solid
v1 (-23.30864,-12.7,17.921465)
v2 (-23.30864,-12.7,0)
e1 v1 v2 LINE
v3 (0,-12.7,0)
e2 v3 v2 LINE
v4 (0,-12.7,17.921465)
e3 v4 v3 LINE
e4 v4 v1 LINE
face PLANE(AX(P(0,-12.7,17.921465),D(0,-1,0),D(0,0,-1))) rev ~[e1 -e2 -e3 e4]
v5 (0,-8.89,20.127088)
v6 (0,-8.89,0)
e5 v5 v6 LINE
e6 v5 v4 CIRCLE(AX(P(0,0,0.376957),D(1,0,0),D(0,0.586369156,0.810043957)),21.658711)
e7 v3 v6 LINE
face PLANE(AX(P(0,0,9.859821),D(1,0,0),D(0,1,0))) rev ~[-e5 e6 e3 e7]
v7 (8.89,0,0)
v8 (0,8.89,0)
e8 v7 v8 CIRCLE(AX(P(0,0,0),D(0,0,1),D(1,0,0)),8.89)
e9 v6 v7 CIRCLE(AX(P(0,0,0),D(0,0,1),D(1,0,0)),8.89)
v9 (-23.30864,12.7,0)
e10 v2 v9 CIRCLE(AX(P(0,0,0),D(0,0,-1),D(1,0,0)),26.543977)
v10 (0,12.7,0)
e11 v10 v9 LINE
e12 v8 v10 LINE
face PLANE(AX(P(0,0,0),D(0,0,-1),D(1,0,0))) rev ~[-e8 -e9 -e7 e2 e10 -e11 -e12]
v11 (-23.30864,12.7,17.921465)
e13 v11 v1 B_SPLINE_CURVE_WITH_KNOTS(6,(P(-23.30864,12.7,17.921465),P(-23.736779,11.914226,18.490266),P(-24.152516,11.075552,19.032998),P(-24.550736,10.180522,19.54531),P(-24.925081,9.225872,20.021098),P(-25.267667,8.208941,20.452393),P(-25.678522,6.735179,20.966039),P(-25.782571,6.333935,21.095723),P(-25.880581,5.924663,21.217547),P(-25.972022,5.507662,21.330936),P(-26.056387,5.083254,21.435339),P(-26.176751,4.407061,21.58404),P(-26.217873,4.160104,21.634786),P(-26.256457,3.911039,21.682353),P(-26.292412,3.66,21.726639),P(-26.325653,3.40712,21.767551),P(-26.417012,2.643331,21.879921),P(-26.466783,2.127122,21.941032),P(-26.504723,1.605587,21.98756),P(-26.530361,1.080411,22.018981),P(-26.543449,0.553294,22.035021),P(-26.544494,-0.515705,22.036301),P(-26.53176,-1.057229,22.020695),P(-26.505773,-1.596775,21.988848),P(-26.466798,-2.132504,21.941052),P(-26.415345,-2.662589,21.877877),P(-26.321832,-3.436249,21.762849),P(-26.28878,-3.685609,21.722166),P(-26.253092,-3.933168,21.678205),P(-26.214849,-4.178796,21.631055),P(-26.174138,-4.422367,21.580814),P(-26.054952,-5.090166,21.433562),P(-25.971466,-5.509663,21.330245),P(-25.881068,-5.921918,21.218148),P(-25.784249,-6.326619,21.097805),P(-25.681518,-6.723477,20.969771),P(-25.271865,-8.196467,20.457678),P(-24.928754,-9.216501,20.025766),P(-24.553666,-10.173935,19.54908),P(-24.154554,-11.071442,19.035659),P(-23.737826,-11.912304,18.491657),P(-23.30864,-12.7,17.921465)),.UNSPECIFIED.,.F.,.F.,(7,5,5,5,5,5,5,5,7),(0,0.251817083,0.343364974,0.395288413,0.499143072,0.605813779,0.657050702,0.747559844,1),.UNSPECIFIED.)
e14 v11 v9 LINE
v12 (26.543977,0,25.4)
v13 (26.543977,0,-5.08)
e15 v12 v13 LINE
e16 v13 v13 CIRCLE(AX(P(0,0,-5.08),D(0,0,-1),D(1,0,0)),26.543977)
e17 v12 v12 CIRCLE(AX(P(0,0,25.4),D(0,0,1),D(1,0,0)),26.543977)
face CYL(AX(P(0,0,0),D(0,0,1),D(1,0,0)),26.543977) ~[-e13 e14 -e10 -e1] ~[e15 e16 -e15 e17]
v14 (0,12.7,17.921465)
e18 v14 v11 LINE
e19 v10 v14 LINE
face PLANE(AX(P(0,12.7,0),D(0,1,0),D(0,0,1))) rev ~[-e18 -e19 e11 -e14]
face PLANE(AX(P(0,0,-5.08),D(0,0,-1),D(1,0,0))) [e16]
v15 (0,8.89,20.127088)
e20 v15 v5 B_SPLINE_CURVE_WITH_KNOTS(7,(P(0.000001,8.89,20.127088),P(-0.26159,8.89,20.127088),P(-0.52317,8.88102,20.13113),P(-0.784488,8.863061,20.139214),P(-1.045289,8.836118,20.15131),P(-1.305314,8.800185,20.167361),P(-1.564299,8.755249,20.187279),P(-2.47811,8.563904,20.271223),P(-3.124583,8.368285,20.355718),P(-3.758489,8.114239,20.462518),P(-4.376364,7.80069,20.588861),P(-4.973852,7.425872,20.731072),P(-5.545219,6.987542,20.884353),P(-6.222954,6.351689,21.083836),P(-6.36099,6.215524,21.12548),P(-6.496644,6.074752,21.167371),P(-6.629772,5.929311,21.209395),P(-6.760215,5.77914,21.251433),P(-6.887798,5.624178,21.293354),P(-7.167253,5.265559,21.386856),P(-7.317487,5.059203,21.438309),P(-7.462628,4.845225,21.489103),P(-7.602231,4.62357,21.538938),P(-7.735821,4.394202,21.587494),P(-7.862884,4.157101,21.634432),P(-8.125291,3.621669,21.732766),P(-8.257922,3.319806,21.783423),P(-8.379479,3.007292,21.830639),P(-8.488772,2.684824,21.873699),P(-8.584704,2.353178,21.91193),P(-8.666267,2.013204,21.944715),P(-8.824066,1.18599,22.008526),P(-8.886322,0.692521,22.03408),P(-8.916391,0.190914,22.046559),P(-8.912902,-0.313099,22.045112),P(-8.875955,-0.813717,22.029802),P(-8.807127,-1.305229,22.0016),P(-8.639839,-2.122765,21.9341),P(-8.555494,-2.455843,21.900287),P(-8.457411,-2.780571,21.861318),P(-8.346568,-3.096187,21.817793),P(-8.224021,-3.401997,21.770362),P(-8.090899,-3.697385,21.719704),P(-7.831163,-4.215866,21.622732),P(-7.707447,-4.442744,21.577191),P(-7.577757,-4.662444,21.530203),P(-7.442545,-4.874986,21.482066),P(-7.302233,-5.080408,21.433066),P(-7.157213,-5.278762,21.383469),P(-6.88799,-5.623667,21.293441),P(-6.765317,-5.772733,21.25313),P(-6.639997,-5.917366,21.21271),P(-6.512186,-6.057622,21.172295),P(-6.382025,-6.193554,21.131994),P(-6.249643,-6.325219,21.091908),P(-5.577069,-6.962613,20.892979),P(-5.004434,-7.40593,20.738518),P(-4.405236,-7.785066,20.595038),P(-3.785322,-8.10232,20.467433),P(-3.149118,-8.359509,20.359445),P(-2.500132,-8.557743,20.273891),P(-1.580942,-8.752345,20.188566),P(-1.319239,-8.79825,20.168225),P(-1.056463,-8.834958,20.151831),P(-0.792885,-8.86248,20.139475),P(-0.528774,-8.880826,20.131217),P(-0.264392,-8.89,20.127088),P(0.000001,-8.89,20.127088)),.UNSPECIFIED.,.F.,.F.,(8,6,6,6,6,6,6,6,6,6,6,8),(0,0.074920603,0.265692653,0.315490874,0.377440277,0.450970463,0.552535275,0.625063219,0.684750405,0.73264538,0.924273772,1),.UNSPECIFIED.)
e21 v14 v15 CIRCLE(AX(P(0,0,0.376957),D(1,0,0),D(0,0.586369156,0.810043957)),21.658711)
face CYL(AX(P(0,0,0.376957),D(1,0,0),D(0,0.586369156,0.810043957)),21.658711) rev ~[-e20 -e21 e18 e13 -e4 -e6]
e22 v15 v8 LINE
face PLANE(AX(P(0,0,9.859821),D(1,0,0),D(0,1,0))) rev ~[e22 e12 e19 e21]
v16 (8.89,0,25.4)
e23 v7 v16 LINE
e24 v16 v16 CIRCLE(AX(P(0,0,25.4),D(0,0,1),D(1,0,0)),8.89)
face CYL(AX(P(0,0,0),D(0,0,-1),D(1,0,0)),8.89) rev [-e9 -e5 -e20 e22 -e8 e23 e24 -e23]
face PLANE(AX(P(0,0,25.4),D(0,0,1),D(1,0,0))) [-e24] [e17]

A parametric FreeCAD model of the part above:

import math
import FreeCAD as App
import Part
import Sketcher
Q = App.Units.Quantity

doc = App.newDocument("Part")
params = doc.addObject("Spreadsheet::Sheet", "Params")
for row, (alias, value) in enumerate([
    ("sketch1_diameter", "0.7 in"),
    ("pad1_length", "1 in"),
    ("sketch2_width", "1 in"),
    ("pocket1_length", "2 in"),
    ("pad2_length", "0.2 in"),
], start=1):
    params.set(f"A{row}", alias)
    params.set(f"B{row}", "=" + value)
    params.setAlias(f"B{row}", alias)

body = doc.addObject("PartDesign::Body", "Body")

# Sketch on XY plane
sketch1 = body.newObject("Sketcher::SketchObject", "Sketch")
sketch1.AttachmentSupport = (doc.getObject("XY_Plane"), [""])
sketch1.MapMode = "FlatFace"
sketch1.addGeometry(Part.Circle(App.Vector(0, 0, 0), App.Vector(0, 0, 1), 27), False)
sketch1.addGeometry(Part.Circle(App.Vector(0, 0, 0), App.Vector(0, 0, 1), 9), False)
sketch1.addConstraint(Sketcher.Constraint("Coincident", 0, 3, -1, 1))
sketch1.addConstraint(Sketcher.Constraint("Coincident", 1, 3, -1, 1))
sketch1.addConstraint(Sketcher.Constraint("Diameter", 1, Q("0.7 in")))
sketch1.addConstraint(Sketcher.Constraint("Diameter", 0, 53.087954))
sketch1.setExpression("Constraints[2]", "Params.sketch1_diameter")
pad1 = body.newObject("PartDesign::Pad", "Pad")
pad1.Profile = sketch1
pad1.setExpression("Length", "Params.pad1_length")

# Sketch on YZ plane
sketch2 = body.newObject("Sketcher::SketchObject", "Sketch001")
sketch2.AttachmentSupport = (doc.getObject("YZ_Plane"), [""])
sketch2.MapMode = "FlatFace"
sketch2.addGeometry(Part.LineSegment(App.Vector(-13, 18, 0), App.Vector(-13, 0, 0)), False)
sketch2.addGeometry(Part.LineSegment(App.Vector(-13, 0, 0), App.Vector(13, 0, 0)), False)
sketch2.addGeometry(Part.LineSegment(App.Vector(13, 0, 0), App.Vector(13, 18, 0)), False)
sketch2.addGeometry(Part.ArcOfCircle(Part.Circle(App.Vector(0, 0, 0), App.Vector(0, 0, 1), 22), math.radians(54), math.radians(126)), False)
sketch2.addConstraint(Sketcher.Constraint("Coincident", 0, 2, 1, 1))
sketch2.addConstraint(Sketcher.Constraint("Coincident", 1, 2, 2, 1))
sketch2.addConstraint(Sketcher.Constraint("Coincident", 2, 2, 3, 1))
sketch2.addConstraint(Sketcher.Constraint("Coincident", 3, 2, 0, 1))
sketch2.addConstraint(Sketcher.Constraint("Vertical", 0))
sketch2.addConstraint(Sketcher.Constraint("Horizontal", 1))
sketch2.addConstraint(Sketcher.Constraint("Vertical", 2))
sketch2.addConstraint(Sketcher.Constraint("Symmetric", 0, 2, 1, 2, -1, 1))
sketch2.addConstraint(Sketcher.Constraint("PointOnObject", 3, 3, -2))
sketch2.addConstraint(Sketcher.Constraint("DistanceX", 1, 1, 1, 2, Q("1 in")))
sketch2.addConstraint(Sketcher.Constraint("Radius", 3, 21.658711))
sketch2.addConstraint(Sketcher.Constraint("DistanceY", 0, 2, 0, 1, 17.921465))
sketch2.setExpression("Constraints[9]", "Params.sketch2_width")
pocket1 = body.newObject("PartDesign::Pocket", "Pocket")
pocket1.Profile = sketch2
pocket1.setExpression("Length", "Params.pocket1_length")

# Sketch on XY plane
sketch3 = body.newObject("Sketcher::SketchObject", "Sketch002")
sketch3.AttachmentSupport = (doc.getObject("XY_Plane"), [""])
sketch3.MapMode = "FlatFace"
sketch3.addGeometry(Part.Circle(App.Vector(0, 0, 0), App.Vector(0, 0, 1), 27), False)
sketch3.addConstraint(Sketcher.Constraint("Coincident", 0, 3, -1, 1))
sketch3.addConstraint(Sketcher.Constraint("Diameter", 0, 53.087954))
pad2 = body.newObject("PartDesign::Pad", "Pad001")
pad2.Profile = sketch3
pad2.setExpression("Length", "Params.pad2_length")
pad2.Reversed = True

doc.recompute()
